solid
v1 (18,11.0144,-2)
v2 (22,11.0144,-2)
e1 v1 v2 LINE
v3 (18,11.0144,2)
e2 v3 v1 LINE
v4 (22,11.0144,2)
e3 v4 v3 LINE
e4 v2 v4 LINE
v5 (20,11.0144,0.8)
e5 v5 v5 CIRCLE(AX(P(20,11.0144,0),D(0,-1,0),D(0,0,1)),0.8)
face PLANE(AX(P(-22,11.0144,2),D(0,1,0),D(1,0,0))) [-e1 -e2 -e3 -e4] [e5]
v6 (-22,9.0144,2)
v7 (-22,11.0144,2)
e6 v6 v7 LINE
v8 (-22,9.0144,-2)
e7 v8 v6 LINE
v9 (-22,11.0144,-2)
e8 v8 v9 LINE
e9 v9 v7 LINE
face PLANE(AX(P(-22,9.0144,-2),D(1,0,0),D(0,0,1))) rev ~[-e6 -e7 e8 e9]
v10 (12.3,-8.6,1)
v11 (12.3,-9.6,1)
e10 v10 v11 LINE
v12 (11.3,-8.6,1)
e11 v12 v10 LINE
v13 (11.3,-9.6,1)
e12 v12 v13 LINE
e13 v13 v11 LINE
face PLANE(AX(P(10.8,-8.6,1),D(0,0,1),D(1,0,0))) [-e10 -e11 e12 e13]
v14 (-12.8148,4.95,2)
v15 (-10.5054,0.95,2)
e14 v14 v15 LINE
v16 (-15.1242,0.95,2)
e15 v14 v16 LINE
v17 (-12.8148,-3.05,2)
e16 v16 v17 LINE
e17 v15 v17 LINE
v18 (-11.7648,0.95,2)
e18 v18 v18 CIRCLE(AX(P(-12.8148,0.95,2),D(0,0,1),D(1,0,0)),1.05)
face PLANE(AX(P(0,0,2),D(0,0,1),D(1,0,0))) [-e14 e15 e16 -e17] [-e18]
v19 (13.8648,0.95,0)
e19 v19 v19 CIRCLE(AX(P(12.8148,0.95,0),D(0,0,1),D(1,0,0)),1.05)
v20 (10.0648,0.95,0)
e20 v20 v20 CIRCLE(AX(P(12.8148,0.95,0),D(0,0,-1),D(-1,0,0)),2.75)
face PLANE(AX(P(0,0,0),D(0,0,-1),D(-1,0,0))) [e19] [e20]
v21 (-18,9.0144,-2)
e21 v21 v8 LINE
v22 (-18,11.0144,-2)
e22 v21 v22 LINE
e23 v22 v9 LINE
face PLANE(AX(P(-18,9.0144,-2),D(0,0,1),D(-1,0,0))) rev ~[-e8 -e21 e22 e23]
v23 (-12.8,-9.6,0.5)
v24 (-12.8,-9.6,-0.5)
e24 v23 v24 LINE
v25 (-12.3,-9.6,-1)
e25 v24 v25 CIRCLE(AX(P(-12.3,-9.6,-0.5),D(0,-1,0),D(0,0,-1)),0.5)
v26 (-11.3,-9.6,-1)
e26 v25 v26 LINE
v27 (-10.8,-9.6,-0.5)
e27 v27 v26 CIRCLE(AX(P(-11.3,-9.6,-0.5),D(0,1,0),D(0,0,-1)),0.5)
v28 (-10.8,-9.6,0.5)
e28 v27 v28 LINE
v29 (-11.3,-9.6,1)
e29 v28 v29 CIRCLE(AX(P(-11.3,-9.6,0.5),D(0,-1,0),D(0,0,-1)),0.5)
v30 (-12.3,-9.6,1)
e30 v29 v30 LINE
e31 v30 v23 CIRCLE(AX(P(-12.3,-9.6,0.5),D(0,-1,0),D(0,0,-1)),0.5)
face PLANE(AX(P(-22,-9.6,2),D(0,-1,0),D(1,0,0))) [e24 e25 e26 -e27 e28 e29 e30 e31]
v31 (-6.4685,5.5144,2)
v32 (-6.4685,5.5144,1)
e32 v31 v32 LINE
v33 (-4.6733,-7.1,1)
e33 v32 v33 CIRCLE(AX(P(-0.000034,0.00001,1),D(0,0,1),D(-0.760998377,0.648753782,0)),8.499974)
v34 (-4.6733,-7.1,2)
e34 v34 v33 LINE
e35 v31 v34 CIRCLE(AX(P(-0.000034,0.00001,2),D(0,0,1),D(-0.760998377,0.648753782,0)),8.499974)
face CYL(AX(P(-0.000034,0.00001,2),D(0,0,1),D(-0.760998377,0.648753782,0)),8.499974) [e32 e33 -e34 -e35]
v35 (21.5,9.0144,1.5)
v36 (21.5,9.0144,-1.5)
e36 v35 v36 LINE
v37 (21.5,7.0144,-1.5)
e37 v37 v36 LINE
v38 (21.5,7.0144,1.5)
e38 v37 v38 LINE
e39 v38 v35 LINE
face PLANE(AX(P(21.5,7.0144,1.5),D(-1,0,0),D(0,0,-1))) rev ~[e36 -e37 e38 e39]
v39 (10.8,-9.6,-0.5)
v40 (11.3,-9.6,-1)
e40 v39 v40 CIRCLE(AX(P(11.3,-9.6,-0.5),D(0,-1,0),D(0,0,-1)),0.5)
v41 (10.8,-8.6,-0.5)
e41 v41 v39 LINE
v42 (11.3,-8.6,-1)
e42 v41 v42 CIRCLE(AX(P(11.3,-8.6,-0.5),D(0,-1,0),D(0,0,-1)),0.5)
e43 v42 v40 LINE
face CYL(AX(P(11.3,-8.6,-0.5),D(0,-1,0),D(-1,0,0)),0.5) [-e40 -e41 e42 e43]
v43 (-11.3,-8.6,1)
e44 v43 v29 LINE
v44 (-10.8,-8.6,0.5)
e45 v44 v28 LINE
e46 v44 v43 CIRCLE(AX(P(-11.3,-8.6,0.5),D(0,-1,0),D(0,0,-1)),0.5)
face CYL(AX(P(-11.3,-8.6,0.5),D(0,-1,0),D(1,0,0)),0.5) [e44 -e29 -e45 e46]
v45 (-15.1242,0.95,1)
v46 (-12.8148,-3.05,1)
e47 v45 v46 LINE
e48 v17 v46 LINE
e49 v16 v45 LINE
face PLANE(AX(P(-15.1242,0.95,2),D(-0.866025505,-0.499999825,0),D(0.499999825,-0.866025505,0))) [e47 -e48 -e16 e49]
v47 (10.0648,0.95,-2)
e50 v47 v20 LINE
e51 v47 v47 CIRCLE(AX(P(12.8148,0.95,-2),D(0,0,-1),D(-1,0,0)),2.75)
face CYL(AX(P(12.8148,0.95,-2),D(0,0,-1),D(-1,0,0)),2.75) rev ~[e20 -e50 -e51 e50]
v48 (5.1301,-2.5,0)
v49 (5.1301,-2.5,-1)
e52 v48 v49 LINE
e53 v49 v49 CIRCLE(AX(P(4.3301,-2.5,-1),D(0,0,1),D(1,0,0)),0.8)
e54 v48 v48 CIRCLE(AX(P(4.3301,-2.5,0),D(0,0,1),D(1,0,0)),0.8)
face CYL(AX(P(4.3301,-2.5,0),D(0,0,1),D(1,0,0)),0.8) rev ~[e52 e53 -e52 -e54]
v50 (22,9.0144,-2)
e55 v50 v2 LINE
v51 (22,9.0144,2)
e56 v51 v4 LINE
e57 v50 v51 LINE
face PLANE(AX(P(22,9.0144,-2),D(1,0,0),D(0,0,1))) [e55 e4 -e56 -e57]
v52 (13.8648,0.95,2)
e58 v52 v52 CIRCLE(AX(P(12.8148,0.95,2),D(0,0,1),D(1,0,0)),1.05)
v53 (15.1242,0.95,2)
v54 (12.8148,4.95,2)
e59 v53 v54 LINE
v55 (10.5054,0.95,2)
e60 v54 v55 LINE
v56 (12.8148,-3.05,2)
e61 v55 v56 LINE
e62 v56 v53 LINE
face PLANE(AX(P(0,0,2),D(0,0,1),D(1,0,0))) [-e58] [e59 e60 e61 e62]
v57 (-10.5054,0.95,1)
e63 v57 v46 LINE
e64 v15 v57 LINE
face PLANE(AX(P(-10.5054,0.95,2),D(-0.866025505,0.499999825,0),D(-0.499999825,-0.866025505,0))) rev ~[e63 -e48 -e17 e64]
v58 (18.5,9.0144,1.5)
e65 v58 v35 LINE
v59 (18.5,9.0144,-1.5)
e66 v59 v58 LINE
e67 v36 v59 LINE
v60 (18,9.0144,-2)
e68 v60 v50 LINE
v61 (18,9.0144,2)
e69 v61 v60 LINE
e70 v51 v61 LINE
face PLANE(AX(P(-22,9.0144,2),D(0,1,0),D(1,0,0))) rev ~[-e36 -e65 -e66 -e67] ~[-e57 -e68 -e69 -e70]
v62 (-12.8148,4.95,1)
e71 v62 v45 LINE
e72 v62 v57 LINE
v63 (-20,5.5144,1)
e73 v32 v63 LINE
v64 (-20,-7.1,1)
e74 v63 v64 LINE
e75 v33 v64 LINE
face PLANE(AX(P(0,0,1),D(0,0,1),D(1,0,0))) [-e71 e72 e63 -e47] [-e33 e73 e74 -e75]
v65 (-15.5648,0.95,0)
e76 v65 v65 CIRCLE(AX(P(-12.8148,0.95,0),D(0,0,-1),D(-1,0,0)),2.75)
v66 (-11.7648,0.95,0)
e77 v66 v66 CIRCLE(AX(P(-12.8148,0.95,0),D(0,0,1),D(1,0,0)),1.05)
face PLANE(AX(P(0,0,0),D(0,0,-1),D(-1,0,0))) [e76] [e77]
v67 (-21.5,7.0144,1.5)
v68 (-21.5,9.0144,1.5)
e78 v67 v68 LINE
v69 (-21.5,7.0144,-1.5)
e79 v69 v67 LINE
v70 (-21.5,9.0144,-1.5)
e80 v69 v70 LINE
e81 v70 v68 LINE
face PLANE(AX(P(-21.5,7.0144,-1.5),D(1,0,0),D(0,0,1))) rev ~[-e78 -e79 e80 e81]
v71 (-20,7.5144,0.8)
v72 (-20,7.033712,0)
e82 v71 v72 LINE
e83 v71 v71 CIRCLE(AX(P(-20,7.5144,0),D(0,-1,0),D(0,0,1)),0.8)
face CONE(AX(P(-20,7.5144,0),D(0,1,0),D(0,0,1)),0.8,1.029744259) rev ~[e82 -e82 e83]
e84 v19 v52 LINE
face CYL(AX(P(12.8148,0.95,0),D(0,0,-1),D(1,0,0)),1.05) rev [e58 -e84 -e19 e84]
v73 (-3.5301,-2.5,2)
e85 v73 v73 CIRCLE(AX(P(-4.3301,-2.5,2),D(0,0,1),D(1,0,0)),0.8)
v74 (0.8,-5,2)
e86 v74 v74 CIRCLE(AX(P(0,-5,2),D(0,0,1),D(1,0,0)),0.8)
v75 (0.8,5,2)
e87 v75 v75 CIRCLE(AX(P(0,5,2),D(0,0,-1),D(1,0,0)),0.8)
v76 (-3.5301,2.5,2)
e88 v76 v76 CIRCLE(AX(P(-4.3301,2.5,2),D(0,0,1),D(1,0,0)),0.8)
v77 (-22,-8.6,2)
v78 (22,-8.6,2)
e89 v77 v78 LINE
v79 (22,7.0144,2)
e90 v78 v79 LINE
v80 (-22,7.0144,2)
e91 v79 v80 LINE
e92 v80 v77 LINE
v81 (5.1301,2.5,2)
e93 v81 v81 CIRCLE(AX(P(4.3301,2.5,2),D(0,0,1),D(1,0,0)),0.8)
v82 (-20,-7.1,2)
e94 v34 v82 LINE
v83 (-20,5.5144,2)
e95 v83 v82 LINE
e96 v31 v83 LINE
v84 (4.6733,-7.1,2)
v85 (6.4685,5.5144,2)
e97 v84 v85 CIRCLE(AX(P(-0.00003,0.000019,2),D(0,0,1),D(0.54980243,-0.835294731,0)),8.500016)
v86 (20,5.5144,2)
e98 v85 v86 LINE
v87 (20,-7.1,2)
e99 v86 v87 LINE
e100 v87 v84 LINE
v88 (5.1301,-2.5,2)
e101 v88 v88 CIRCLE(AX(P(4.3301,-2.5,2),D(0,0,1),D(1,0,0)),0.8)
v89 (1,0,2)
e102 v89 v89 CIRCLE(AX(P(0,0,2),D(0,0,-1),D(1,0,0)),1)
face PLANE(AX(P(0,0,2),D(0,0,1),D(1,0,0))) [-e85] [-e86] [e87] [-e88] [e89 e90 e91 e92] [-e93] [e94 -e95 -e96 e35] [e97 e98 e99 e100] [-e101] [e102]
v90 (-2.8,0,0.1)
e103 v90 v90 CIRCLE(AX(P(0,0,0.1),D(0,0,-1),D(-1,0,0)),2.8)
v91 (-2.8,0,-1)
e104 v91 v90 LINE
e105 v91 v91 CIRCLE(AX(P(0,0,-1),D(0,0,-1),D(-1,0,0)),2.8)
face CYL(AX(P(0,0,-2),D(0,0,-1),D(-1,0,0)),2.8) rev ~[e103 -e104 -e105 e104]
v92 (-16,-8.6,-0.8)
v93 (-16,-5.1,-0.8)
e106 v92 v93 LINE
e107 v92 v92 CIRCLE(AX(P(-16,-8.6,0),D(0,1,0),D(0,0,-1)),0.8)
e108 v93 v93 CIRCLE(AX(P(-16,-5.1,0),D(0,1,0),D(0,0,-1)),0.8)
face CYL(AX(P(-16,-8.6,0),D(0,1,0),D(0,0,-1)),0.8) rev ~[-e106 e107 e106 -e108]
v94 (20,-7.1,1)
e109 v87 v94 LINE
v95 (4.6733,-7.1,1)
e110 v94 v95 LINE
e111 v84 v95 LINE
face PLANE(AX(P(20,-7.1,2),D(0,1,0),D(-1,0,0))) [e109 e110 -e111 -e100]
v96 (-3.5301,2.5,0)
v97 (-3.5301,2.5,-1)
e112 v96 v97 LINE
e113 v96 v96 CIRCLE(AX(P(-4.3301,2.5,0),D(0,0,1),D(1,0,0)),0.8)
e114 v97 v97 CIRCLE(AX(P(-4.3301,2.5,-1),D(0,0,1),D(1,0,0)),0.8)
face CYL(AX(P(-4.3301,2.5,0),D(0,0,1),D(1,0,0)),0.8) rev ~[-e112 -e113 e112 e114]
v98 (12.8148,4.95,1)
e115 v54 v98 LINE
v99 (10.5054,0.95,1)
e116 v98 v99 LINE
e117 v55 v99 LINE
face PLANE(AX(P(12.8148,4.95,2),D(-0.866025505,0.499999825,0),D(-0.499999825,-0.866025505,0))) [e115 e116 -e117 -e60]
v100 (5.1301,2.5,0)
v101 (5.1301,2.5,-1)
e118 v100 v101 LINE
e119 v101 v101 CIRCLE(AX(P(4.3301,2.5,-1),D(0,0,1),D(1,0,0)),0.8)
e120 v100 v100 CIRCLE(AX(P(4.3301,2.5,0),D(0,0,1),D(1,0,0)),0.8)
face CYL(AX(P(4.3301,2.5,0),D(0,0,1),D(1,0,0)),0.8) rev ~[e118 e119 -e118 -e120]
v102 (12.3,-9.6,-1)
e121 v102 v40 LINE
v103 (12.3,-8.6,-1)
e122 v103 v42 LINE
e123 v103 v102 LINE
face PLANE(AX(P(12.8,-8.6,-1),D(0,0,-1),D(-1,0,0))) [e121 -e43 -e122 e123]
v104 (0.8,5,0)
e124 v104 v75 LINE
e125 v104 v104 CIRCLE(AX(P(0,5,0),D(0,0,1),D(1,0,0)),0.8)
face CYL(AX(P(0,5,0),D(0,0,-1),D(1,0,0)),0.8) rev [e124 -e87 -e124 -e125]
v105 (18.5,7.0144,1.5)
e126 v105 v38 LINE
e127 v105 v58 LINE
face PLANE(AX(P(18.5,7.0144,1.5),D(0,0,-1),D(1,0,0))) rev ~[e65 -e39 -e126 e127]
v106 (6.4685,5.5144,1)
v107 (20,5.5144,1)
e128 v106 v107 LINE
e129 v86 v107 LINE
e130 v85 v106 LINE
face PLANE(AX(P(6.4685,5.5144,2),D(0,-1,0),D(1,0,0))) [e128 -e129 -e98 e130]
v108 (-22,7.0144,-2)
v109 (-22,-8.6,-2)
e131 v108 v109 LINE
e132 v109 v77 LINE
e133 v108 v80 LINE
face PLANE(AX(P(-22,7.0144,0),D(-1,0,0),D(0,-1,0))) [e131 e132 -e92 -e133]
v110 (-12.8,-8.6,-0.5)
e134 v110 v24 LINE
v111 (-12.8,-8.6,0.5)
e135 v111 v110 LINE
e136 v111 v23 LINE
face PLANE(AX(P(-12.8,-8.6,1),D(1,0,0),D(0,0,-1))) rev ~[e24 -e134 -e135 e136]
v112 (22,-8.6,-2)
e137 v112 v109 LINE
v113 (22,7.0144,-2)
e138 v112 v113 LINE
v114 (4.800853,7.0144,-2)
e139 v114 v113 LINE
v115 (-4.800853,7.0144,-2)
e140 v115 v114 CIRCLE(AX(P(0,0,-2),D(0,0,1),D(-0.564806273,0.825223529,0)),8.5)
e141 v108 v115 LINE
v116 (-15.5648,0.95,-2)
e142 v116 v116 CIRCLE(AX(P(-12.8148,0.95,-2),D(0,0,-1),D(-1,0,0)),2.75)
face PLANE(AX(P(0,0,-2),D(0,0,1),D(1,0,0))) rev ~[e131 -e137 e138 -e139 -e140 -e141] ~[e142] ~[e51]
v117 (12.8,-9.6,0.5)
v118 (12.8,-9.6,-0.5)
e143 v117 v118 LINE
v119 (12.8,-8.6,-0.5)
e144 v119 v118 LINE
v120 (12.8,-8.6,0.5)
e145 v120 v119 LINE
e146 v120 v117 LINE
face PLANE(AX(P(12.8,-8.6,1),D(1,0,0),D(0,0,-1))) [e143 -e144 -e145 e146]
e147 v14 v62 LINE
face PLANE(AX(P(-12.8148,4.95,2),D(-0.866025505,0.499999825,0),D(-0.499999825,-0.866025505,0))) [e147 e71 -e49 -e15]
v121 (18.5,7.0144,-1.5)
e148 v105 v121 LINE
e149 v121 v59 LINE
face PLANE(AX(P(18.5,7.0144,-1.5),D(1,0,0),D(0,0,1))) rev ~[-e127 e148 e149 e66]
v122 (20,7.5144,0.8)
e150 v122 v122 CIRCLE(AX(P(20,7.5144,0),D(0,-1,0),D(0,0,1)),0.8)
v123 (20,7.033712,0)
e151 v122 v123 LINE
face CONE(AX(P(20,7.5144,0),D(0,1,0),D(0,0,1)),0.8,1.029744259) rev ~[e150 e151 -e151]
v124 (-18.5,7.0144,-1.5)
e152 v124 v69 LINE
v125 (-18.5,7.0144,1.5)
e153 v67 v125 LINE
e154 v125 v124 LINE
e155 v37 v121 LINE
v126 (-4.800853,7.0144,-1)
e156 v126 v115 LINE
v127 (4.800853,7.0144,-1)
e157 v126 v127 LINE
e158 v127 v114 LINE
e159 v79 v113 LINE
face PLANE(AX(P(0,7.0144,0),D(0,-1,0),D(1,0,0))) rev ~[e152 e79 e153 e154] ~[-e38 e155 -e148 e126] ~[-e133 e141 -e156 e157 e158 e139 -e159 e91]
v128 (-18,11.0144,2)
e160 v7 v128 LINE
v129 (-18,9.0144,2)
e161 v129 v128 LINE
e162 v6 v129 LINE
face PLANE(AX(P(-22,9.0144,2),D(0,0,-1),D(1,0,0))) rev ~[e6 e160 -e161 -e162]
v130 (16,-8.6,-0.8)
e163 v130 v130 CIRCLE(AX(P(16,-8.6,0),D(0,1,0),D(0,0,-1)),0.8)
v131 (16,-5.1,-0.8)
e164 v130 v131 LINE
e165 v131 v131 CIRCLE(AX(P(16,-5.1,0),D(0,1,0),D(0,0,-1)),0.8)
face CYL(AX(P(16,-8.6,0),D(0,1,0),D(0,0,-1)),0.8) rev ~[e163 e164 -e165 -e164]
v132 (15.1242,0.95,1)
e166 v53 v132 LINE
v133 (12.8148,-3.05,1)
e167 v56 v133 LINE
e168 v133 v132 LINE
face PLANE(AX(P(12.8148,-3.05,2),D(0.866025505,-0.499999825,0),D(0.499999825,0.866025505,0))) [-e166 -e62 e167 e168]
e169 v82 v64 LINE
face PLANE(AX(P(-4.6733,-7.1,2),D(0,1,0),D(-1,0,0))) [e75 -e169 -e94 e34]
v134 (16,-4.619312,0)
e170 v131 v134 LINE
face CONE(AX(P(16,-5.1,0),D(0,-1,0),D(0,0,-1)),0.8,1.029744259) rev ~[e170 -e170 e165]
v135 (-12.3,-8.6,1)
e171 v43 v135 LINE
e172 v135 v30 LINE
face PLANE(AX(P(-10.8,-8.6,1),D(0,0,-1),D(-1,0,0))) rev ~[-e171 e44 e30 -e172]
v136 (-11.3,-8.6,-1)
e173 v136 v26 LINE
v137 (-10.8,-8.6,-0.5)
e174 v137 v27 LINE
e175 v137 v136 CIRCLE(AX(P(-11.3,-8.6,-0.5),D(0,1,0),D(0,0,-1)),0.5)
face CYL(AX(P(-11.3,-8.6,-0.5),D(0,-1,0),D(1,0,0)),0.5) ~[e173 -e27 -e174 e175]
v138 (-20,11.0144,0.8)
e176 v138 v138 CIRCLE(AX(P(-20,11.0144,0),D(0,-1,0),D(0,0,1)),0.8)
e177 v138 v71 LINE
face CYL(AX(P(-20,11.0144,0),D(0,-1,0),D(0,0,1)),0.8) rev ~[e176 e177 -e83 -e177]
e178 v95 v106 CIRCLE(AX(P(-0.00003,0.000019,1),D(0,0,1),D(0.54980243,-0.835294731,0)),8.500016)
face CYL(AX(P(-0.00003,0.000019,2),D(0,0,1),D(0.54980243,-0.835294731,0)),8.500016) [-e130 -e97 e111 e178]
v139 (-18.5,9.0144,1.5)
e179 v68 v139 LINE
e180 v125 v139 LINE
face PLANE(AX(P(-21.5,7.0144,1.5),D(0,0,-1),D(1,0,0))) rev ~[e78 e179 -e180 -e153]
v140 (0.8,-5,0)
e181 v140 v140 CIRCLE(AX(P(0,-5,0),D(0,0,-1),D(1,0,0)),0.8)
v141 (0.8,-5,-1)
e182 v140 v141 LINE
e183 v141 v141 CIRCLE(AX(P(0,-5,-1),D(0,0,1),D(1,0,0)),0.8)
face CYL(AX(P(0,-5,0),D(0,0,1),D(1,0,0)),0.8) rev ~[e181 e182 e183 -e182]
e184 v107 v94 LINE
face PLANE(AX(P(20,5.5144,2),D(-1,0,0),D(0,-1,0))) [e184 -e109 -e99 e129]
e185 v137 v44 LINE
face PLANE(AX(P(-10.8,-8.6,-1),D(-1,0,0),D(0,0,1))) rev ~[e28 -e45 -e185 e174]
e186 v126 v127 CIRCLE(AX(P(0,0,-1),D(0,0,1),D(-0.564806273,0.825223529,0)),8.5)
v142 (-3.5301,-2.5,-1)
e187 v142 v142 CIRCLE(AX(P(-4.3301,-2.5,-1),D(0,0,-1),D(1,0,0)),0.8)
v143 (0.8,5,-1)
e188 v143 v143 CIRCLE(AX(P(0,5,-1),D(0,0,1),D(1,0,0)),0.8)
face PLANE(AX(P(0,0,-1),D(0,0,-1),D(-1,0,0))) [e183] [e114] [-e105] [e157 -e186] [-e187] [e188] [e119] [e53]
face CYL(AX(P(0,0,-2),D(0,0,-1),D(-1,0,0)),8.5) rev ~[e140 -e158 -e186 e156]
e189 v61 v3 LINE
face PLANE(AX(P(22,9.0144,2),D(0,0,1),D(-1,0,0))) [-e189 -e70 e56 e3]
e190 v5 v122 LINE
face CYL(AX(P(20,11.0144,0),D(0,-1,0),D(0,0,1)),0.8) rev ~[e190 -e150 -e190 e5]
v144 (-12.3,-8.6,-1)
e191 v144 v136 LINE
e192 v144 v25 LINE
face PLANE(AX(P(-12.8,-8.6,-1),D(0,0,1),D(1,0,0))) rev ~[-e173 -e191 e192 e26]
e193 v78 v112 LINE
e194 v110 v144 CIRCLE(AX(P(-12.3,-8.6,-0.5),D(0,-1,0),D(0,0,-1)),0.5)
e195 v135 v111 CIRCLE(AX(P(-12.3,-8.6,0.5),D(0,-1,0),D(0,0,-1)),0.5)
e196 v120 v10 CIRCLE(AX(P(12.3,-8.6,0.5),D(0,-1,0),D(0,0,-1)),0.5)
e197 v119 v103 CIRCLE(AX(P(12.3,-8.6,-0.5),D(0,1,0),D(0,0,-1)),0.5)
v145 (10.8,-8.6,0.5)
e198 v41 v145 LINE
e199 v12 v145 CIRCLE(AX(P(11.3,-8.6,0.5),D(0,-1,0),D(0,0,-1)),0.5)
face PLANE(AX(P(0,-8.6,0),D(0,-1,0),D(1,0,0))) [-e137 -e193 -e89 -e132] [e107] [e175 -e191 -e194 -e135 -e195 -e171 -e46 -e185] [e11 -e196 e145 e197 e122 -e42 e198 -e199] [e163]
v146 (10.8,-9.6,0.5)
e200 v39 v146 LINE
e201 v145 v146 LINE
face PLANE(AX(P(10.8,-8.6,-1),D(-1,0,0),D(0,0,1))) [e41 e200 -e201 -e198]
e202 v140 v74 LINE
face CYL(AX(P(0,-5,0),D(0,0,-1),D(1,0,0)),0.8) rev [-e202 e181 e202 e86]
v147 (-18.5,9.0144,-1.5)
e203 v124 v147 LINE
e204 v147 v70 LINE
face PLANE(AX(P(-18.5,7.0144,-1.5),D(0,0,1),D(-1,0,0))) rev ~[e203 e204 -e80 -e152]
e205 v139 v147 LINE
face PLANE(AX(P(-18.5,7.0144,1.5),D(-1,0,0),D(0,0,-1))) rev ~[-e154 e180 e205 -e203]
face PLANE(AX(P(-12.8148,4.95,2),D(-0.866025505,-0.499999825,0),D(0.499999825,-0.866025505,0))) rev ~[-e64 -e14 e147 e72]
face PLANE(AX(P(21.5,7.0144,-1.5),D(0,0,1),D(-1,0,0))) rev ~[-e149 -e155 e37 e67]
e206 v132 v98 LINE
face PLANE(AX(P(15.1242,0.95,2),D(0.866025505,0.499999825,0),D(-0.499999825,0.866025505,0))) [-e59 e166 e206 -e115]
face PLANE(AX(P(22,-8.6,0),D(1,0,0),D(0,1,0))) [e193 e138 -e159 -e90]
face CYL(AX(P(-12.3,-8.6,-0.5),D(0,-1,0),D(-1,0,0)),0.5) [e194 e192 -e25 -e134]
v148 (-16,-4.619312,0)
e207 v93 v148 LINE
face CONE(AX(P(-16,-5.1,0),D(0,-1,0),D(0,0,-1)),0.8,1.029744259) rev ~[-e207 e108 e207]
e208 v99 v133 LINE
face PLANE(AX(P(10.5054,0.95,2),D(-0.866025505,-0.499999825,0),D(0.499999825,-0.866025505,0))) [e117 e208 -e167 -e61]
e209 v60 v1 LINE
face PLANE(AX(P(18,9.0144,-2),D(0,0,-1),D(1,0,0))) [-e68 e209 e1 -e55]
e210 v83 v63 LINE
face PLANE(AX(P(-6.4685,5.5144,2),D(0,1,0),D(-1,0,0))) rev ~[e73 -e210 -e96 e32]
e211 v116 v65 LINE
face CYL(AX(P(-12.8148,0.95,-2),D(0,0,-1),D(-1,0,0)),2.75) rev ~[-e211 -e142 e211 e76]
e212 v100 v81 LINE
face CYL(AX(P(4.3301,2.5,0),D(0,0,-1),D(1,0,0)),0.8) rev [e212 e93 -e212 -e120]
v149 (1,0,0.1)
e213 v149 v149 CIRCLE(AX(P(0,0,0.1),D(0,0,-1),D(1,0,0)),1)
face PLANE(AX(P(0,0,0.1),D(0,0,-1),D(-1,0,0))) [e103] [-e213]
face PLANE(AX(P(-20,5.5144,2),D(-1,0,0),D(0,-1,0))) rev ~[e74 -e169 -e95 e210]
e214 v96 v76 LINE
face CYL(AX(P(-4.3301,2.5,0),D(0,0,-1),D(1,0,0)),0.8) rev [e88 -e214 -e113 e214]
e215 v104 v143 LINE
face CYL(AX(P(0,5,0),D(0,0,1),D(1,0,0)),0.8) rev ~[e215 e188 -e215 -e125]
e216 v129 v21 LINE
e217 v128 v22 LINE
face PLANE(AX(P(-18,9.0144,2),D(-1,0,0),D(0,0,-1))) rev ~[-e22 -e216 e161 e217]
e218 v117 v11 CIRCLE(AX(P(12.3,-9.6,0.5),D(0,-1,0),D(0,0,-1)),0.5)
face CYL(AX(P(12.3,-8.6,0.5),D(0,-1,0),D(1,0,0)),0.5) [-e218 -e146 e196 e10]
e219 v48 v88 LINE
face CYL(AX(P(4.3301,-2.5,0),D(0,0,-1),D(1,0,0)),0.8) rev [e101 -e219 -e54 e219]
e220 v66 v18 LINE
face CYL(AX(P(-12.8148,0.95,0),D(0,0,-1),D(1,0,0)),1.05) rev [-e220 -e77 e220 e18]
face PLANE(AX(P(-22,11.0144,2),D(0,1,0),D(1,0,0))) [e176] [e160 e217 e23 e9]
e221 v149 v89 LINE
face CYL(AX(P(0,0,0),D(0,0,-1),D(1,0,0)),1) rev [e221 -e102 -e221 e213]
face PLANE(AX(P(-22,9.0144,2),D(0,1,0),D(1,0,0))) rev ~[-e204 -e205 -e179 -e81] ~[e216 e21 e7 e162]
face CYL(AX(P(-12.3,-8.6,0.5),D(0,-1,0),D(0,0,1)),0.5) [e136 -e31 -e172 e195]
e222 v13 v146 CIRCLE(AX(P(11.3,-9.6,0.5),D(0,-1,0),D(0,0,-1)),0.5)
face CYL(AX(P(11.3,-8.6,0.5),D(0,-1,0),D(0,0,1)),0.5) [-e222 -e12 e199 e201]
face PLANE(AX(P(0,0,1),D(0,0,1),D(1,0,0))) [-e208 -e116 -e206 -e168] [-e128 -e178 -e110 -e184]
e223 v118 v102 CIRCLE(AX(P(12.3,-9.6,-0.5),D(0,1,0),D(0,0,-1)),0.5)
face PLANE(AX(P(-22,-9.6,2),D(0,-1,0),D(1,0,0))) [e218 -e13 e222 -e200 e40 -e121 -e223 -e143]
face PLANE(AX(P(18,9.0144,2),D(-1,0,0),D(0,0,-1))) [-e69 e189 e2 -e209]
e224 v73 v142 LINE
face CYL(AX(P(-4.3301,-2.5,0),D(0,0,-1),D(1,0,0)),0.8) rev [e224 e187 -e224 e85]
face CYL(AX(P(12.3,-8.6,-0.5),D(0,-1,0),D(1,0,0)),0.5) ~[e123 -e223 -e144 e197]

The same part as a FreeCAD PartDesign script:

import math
import FreeCAD as App
import Part
import Sketcher
Q = App.Units.Quantity


def edges_at(feature, points):
    """Names of the edges that pass closest to the given points."""
    edges = feature.Shape.Edges
    near = lambda p: min(range(len(edges)), key=lambda i: edges[i].distToShape(Part.Vertex(*p))[0])
    return sorted({f"Edge{near(p) + 1}" for p in points})

doc = App.newDocument("Part")
body = doc.addObject("PartDesign::Body", "Body")

sketch1 = doc.addObject("Sketcher::SketchObject", "Sketch")
body.addObject(sketch1)
sketch1.AttachmentSupport = (doc.XY_Plane, [""])
sketch1.MapMode = "FlatFace"
sketch1.addGeometry([
    Part.LineSegment(App.Vector(-22, 7.0144, 0), App.Vector(-22, -8.6, 0)),
    Part.LineSegment(App.Vector(-22, -8.6, 0), App.Vector(22, -8.6, 0)),
    Part.LineSegment(App.Vector(22, -8.6, 0), App.Vector(22, 7.0144, 0)),
    Part.LineSegment(App.Vector(22, 7.0144, 0), App.Vector(-22, 7.0144, 0)),
    Part.Circle(App.Vector(0, -5, 0), App.Vector(0, 0, 1), 0.8),
    Part.Circle(App.Vector(0, 5, 0), App.Vector(0, 0, 1), 0.8),
    Part.Circle(App.Vector(4.3301, -2.5, 0), App.Vector(0, 0, 1), 0.8),
    Part.Circle(App.Vector(4.3301, 2.5, 0), App.Vector(0, 0, 1), 0.8),
    Part.Circle(App.Vector(-4.3301, 2.5, 0), App.Vector(0, 0, 1), 0.8),
    Part.Circle(App.Vector(-4.3301, -2.5, 0), App.Vector(0, 0, 1), 0.8),
    Part.Circle(App.Vector(0, 0, 0), App.Vector(0, 0, 1), 1),
    Part.Circle(App.Vector(12.8148, 0.95, 0), App.Vector(0, 0, 1), 1.05),
    Part.Circle(App.Vector(-12.8148, 0.95, 0), App.Vector(0, 0, 1), 1.05),
], False)
sketch1.addConstraint([
    Sketcher.Constraint("Coincident", 0, 2, 1, 1),
    Sketcher.Constraint("Coincident", 1, 2, 2, 1),
    Sketcher.Constraint("Coincident", 2, 2, 3, 1),
    Sketcher.Constraint("Coincident", 3, 2, 0, 1),
    Sketcher.Constraint("Vertical", 0),
    Sketcher.Constraint("Horizontal", 1),
    Sketcher.Constraint("Vertical", 2),
    Sketcher.Constraint("Horizontal", 3),
    Sketcher.Constraint("Coincident", 10, 3, -1, 1),
    Sketcher.Constraint("Equal", 4, 5),
    Sketcher.Constraint("Equal", 5, 6),
    Sketcher.Constraint("Equal", 6, 7),
    Sketcher.Constraint("Equal", 7, 8),
    Sketcher.Constraint("Equal", 8, 9),
    Sketcher.Constraint("Equal", 11, 12),
    Sketcher.Constraint("Symmetric", 4, 3, 5, 3, -1, 1),
    Sketcher.Constraint("Symmetric", 6, 3, 8, 3, -1, 1),
    Sketcher.Constraint("Symmetric", 7, 3, 9, 3, -1, 1),
    Sketcher.Constraint("Symmetric", 7, 3, 8, 3, -2),
    Sketcher.Constraint("Symmetric", 11, 3, 12, 3, -2),
    Sketcher.Constraint("PointOnObject", 4, 3, -2),
    Sketcher.Constraint("Diameter", 10, 2.0),
    Sketcher.Constraint("Diameter", 4, 1.6),
    Sketcher.Constraint("Diameter", 11, 2.1),
    Sketcher.Constraint("DistanceY", 4, 3, -1, 1, 5.0),
    Sketcher.Constraint("DistanceX", 0, 2, -1, 1, 22.0),
    Sketcher.Constraint("DistanceX", -1, 1, 1, 2, 22.0),
    Sketcher.Constraint("DistanceY", 6, 3, 7, 3, 5.0),
    Sketcher.Constraint("DistanceY", 0, 2, -1, 1, 8.6),
    Sketcher.Constraint("DistanceX", -1, 1, 6, 3, 4.33),
    Sketcher.Constraint("DistanceY", -1, 1, 11, 3, 0.95),
    Sketcher.Constraint("DistanceY", 0, 2, 0, 1, 15.6144),
    Sketcher.Constraint("DistanceX", -1, 1, 11, 3, 12.8148),
])
pad1 = doc.addObject("PartDesign::Pad", "Pad")
body.addObject(pad1)
pad1.Profile = sketch1
pad1.Length = 4
pad1.Midplane = True

sketch2 = doc.addObject("Sketcher::SketchObject", "Sketch001")
body.addObject(sketch2)
sketch2.AttachmentSupport = (doc.XZ_Plane, [""])
sketch2.MapMode = "FlatFace"
sketch2.AttachmentOffset = App.Placement(App.Vector(0, 0, -7.0144), App.Rotation())
sketch2.addGeometry([
    Part.LineSegment(App.Vector(-21.5, -1.5, 0), App.Vector(-21.5, 1.5, 0)),
    Part.LineSegment(App.Vector(-21.5, 1.5, 0), App.Vector(-18.5, 1.5, 0)),
    Part.LineSegment(App.Vector(-18.5, 1.5, 0), App.Vector(-18.5, -1.5, 0)),
    Part.LineSegment(App.Vector(-18.5, -1.5, 0), App.Vector(-21.5, -1.5, 0)),
    Part.LineSegment(App.Vector(18.5, -1.5, 0), App.Vector(18.5, 1.5, 0)),
    Part.LineSegment(App.Vector(18.5, 1.5, 0), App.Vector(21.5, 1.5, 0)),
    Part.LineSegment(App.Vector(21.5, 1.5, 0), App.Vector(21.5, -1.5, 0)),
    Part.LineSegment(App.Vector(21.5, -1.5, 0), App.Vector(18.5, -1.5, 0)),
], False)
sketch2.addConstraint([
    Sketcher.Constraint("Coincident", 0, 2, 1, 1),
    Sketcher.Constraint("Coincident", 1, 2, 2, 1),
    Sketcher.Constraint("Coincident", 2, 2, 3, 1),
    Sketcher.Constraint("Coincident", 3, 2, 0, 1),
    Sketcher.Constraint("Coincident", 4, 2, 5, 1),
    Sketcher.Constraint("Coincident", 5, 2, 6, 1),
    Sketcher.Constraint("Coincident", 6, 2, 7, 1),
    Sketcher.Constraint("Coincident", 7, 2, 4, 1),
    Sketcher.Constraint("Vertical", 0),
    Sketcher.Constraint("Horizontal", 1),
    Sketcher.Constraint("Vertical", 2),
    Sketcher.Constraint("Horizontal", 3),
    Sketcher.Constraint("Vertical", 4),
    Sketcher.Constraint("Horizontal", 5),
    Sketcher.Constraint("Vertical", 6),
    Sketcher.Constraint("Horizontal", 7),
    Sketcher.Constraint("Symmetric", 2, 2, 4, 2, -1, 1),
    Sketcher.Constraint("Symmetric", 0, 2, 6, 2, -1, 1),
    Sketcher.Constraint("Horizontal", 1, 2, 4, 2),
    Sketcher.Constraint("Equal", 7, 0),
    Sketcher.Constraint("DistanceX", 1, 1, 1, 2, 3.0),
    Sketcher.Constraint("DistanceX", 1, 2, 4, 2, 37.0),
])
pad2 = doc.addObject("PartDesign::Pad", "Pad001")
body.addObject(pad2)
pad2.Profile = sketch2
pad2.Length = 2
pad2.Reversed = True

sketch3 = doc.addObject("Sketcher::SketchObject", "Sketch002")
body.addObject(sketch3)
sketch3.AttachmentSupport = (doc.XZ_Plane, [""])
sketch3.MapMode = "FlatFace"
sketch3.AttachmentOffset = App.Placement(App.Vector(0, 0, -9.0144), App.Rotation())
sketch3.addGeometry([
    Part.LineSegment(App.Vector(-18, 2, 0), App.Vector(-18, -2, 0)),
    Part.LineSegment(App.Vector(-18, -2, 0), App.Vector(-22, -2, 0)),
    Part.LineSegment(App.Vector(-22, -2, 0), App.Vector(-22, 2, 0)),
    Part.LineSegment(App.Vector(-22, 2, 0), App.Vector(-18, 2, 0)),
    Part.LineSegment(App.Vector(18, -2, 0), App.Vector(18, 2, 0)),
    Part.LineSegment(App.Vector(18, 2, 0), App.Vector(22, 2, 0)),
    Part.LineSegment(App.Vector(22, 2, 0), App.Vector(22, -2, 0)),
    Part.LineSegment(App.Vector(22, -2, 0), App.Vector(18, -2, 0)),
], False)
sketch3.addConstraint([
    Sketcher.Constraint("Coincident", 0, 2, 1, 1),
    Sketcher.Constraint("Coincident", 1, 2, 2, 1),
    Sketcher.Constraint("Coincident", 2, 2, 3, 1),
    Sketcher.Constraint("Coincident", 3, 2, 0, 1),
    Sketcher.Constraint("Coincident", 4, 2, 5, 1),
    Sketcher.Constraint("Coincident", 5, 2, 6, 1),
    Sketcher.Constraint("Coincident", 6, 2, 7, 1),
    Sketcher.Constraint("Coincident", 7, 2, 4, 1),
    Sketcher.Constraint("Vertical", 0),
    Sketcher.Constraint("Horizontal", 1),
    Sketcher.Constraint("Vertical", 2),
    Sketcher.Constraint("Horizontal", 3),
    Sketcher.Constraint("Vertical", 4),
    Sketcher.Constraint("Horizontal", 5),
    Sketcher.Constraint("Vertical", 6),
    Sketcher.Constraint("Horizontal", 7),
    Sketcher.Constraint("Symmetric", 0, 2, 4, 2, -1, 1),
    Sketcher.Constraint("Symmetric", 2, 2, 6, 2, -1, 1),
    Sketcher.Constraint("Horizontal", 3, 2, 4, 2),
    Sketcher.Constraint("Equal", 7, 0),
    Sketcher.Constraint("DistanceX", 1, 2, 1, 1, 4.0),
    Sketcher.Constraint("DistanceX", 0, 2, -1, 1, 18.0),
])
pad3 = doc.addObject("PartDesign::Pad", "Pad002")
body.addObject(pad3)
pad3.Profile = sketch3
pad3.Length = 2
pad3.Reversed = True

sketch4 = doc.addObject("Sketcher::SketchObject", "Sketch003")
body.addObject(sketch4)
sketch4.AttachmentSupport = (doc.XY_Plane, [""])
sketch4.MapMode = "FlatFace"
sketch4.AttachmentOffset = App.Placement(App.Vector(0, 0, 2), App.Rotation())
sketch4.addGeometry([
    Part.LineSegment(App.Vector(-6.4685, 5.5144, 0), App.Vector(-20, 5.5144, 0)),
    Part.LineSegment(App.Vector(-20, 5.5144, 0), App.Vector(-20, -7.1, 0)),
    Part.LineSegment(App.Vector(-20, -7.1, 0), App.Vector(-4.6733, -7.1, 0)),
    Part.ArcOfCircle(Part.Circle(App.Vector(0, 0, 0), App.Vector(0, 0, 1), 8.499984), math.radians(139.552389), math.radians(236.646637)),
    Part.LineSegment(App.Vector(-15.1242, 0.95, 0), App.Vector(-12.8148, 4.95, 0)),
    Part.LineSegment(App.Vector(-12.8148, 4.95, 0), App.Vector(-10.5054, 0.95, 0)),
    Part.LineSegment(App.Vector(-10.5054, 0.95, 0), App.Vector(-12.8148, -3.05, 0)),
    Part.LineSegment(App.Vector(-12.8148, -3.05, 0), App.Vector(-15.1242, 0.95, 0)),
    Part.LineSegment(App.Vector(20, -7.1, 0), App.Vector(20, 5.5144, 0)),
    Part.LineSegment(App.Vector(20, 5.5144, 0), App.Vector(6.4685, 5.5144, 0)),
    Part.ArcOfCircle(Part.Circle(App.Vector(0, 0, 0), App.Vector(0, 0, 1), 8.500006), math.radians(-56.646637), math.radians(40.447611)),
    Part.LineSegment(App.Vector(4.6733, -7.1, 0), App.Vector(20, -7.1, 0)),
    Part.LineSegment(App.Vector(10.5054, 0.95, 0), App.Vector(12.8148, 4.95, 0)),
    Part.LineSegment(App.Vector(12.8148, 4.95, 0), App.Vector(15.1242, 0.95, 0)),
    Part.LineSegment(App.Vector(15.1242, 0.95, 0), App.Vector(12.8148, -3.05, 0)),
    Part.LineSegment(App.Vector(12.8148, -3.05, 0), App.Vector(10.5054, 0.95, 0)),
], False)
sketch4.addConstraint([
    Sketcher.Constraint("Coincident", 0, 2, 1, 1),
    Sketcher.Constraint("Coincident", 1, 2, 2, 1),
    Sketcher.Constraint("Coincident", 2, 2, 3, 2),
    Sketcher.Constraint("Coincident", 3, 1, 0, 1),
    Sketcher.Constraint("Coincident", 4, 2, 5, 1),
    Sketcher.Constraint("Coincident", 5, 2, 6, 1),
    Sketcher.Constraint("Coincident", 6, 2, 7, 1),
    Sketcher.Constraint("Coincident", 7, 2, 4, 1),
    Sketcher.Constraint("Coincident", 8, 2, 9, 1),
    Sketcher.Constraint("Coincident", 9, 2, 10, 2),
    Sketcher.Constraint("Coincident", 10, 1, 11, 1),
    Sketcher.Constraint("Coincident", 11, 2, 8, 1),
    Sketcher.Constraint("Coincident", 12, 2, 13, 1),
    Sketcher.Constraint("Coincident", 13, 2, 14, 1),
    Sketcher.Constraint("Coincident", 14, 2, 15, 1),
    Sketcher.Constraint("Coincident", 15, 2, 12, 1),
    Sketcher.Constraint("Horizontal", 0),
    Sketcher.Constraint("Vertical", 1),
    Sketcher.Constraint("Horizontal", 2),
    Sketcher.Constraint("Vertical", 8),
    Sketcher.Constraint("Horizontal", 9),
    Sketcher.Constraint("Horizontal", 11),
    Sketcher.Constraint("Coincident", 3, 3, -1, 1),
    Sketcher.Constraint("Coincident", 10, 3, -1, 1),
    Sketcher.Constraint("Equal", 3, 10),
    Sketcher.Constraint("Symmetric", 0, 2, 8, 2, -2),
    Sketcher.Constraint("Symmetric", 4, 2, 12, 2, -2),
    Sketcher.Constraint("Symmetric", 7, 2, 13, 2, -2),
    Sketcher.Constraint("Symmetric", 6, 2, 14, 2, -2),
    Sketcher.Constraint("Symmetric", 5, 2, 15, 2, -2),
    Sketcher.Constraint("Parallel", 4, 6),
    Sketcher.Constraint("Parallel", 5, 7),
    Sketcher.Constraint("Parallel", 6, 12),
    Sketcher.Constraint("Horizontal", 5, 2, 7, 2),
    Sketcher.Constraint("Horizontal", 2, 2, 10, 1),
    Sketcher.Constraint("Radius", 3, 8.5),
    Sketcher.Constraint("Angle", 4, Q("60 deg")),
    Sketcher.Constraint("DistanceY", 6, 2, 4, 2, 8.0),
    Sketcher.Constraint("DistanceX", 0, 2, -1, 1, 20.0),
    Sketcher.Constraint("DistanceY", 1, 2, -1, 1, 7.1),
    Sketcher.Constraint("DistanceY", -1, 1, 4, 2, 4.95),
    Sketcher.Constraint("DistanceX", 0, 2, 0, 1, 13.5315),
    Sketcher.Constraint("DistanceX", 5, 2, 3, 1, 4.037),
])
pocket1 = doc.addObject("PartDesign::Pocket", "Pocket")
body.addObject(pocket1)
pocket1.Profile = sketch4
pocket1.Length = 1

sketch5 = doc.addObject("Sketcher::SketchObject", "Sketch004")
body.addObject(sketch5)
sketch5.AttachmentSupport = (doc.XY_Plane, [""])
sketch5.MapMode = "FlatFace"
sketch5.AttachmentOffset = App.Placement(App.Vector(0, 0, -2), App.Rotation())
sketch5.addGeometry([
    Part.Circle(App.Vector(-12.8148, 0.95, 0), App.Vector(0, 0, 1), 2.75),
    Part.Circle(App.Vector(12.8148, 0.95, 0), App.Vector(0, 0, 1), 2.75),
], False)
sketch5.addConstraint([
    Sketcher.Constraint("Equal", 0, 1),
    Sketcher.Constraint("Symmetric", 0, 3, 1, 3, -2),
    Sketcher.Constraint("Diameter", 0, 5.5),
    Sketcher.Constraint("DistanceY", -1, 1, 0, 3, 0.95),
    Sketcher.Constraint("DistanceX", 0, 3, -1, 1, 12.8148),
])
pocket2 = doc.addObject("PartDesign::Pocket", "Pocket001")
body.addObject(pocket2)
pocket2.Profile = sketch5
pocket2.Length = 2
pocket2.Reversed = True

sketch6 = doc.addObject("Sketcher::SketchObject", "Sketch005")
body.addObject(sketch6)
sketch6.AttachmentSupport = (doc.XY_Plane, [""])
sketch6.MapMode = "FlatFace"
sketch6.AttachmentOffset = App.Placement(App.Vector(0, 0, -2), App.Rotation())
sketch6.addGeometry(Part.Circle(App.Vector(0, 0, 0), App.Vector(0, 0, 1), 8.5), False)
sketch6.addConstraint([
    Sketcher.Constraint("Coincident", 0, 3, -1, 1),
    Sketcher.Constraint("Diameter", 0, 17.0),
])
pocket3 = doc.addObject("PartDesign::Pocket", "Pocket002")
body.addObject(pocket3)
pocket3.Profile = sketch6
pocket3.Length = 1
pocket3.Reversed = True

sketch7 = doc.addObject("Sketcher::SketchObject", "Sketch006")
body.addObject(sketch7)
sketch7.AttachmentSupport = (doc.XY_Plane, [""])
sketch7.MapMode = "FlatFace"
sketch7.AttachmentOffset = App.Placement(App.Vector(0, 0, -2), App.Rotation())
sketch7.addGeometry([
    Part.Circle(App.Vector(0, 0, 0), App.Vector(0, 0, 1), 2.8),
    Part.Circle(App.Vector(0, 0, 0), App.Vector(0, 0, 1), 1),
], False)
sketch7.addConstraint([
    Sketcher.Constraint("Coincident", 0, 3, -1, 1),
    Sketcher.Constraint("Coincident", 1, 3, -1, 1),
    Sketcher.Constraint("Diameter", 0, 5.6),
    Sketcher.Constraint("Diameter", 1, 2.0),
])
pocket4 = doc.addObject("PartDesign::Pocket", "Pocket003")
body.addObject(pocket4)
pocket4.Profile = sketch7
pocket4.Length = 2.1
pocket4.Reversed = True

sketch8 = doc.addObject("Sketcher::SketchObject", "Sketch007")
body.addObject(sketch8)
sketch8.AttachmentSupport = (doc.XZ_Plane, [""])
sketch8.MapMode = "FlatFace"
sketch8.AttachmentOffset = App.Placement(App.Vector(0, 0, 8.6), App.Rotation())
sketch8.addGeometry([
    Part.Circle(App.Vector(16, 0, 0), App.Vector(0, 0, 1), 0.8),
    Part.Circle(App.Vector(-16, 0, 0), App.Vector(0, 0, 1), 0.8),
], False)
sketch8.addConstraint([
    Sketcher.Constraint("Equal", 0, 1),
    Sketcher.Constraint("Symmetric", 0, 3, 1, 3, -1, 1),
    Sketcher.Constraint("PointOnObject", 0, 3, -1),
    Sketcher.Constraint("Diameter", 0, 1.6),
    Sketcher.Constraint("DistanceX", -1, 1, 0, 3, 16.0),
])
doc.recompute()
hole = doc.addObject("PartDesign::Hole", "Hole")
body.addObject(hole)
hole.Profile = sketch8
hole.ThreadType = "None"
hole.Diameter = 1.6
hole.DepthType = "Dimension"
hole.Depth = 3.5
hole.DrillPoint = "Angled"
hole.DrillPointAngle = 118

sketch9 = doc.addObject("Sketcher::SketchObject", "Sketch008")
body.addObject(sketch9)
sketch9.AttachmentSupport = (doc.XZ_Plane, [""])
sketch9.MapMode = "FlatFace"
sketch9.AttachmentOffset = App.Placement(App.Vector(0, 0, 8.6), App.Rotation())
sketch9.addGeometry([
    Part.LineSegment(App.Vector(10.8, -1, 0), App.Vector(12.8, -1, 0)),
    Part.LineSegment(App.Vector(12.8, -1, 0), App.Vector(12.8, 1, 0)),
    Part.LineSegment(App.Vector(12.8, 1, 0), App.Vector(10.8, 1, 0)),
    Part.LineSegment(App.Vector(10.8, 1, 0), App.Vector(10.8, -1, 0)),
    Part.LineSegment(App.Vector(-10.8, -1, 0), App.Vector(-10.8, 1, 0)),
    Part.LineSegment(App.Vector(-10.8, 1, 0), App.Vector(-12.8, 1, 0)),
    Part.LineSegment(App.Vector(-12.8, 1, 0), App.Vector(-12.8, -1, 0)),
    Part.LineSegment(App.Vector(-12.8, -1, 0), App.Vector(-10.8, -1, 0)),
], False)
sketch9.addConstraint([
    Sketcher.Constraint("Coincident", 0, 2, 1, 1),
    Sketcher.Constraint("Coincident", 1, 2, 2, 1),
    Sketcher.Constraint("Coincident", 2, 2, 3, 1),
    Sketcher.Constraint("Coincident", 3, 2, 0, 1),
    Sketcher.Constraint("Coincident", 4, 2, 5, 1),
    Sketcher.Constraint("Coincident", 5, 2, 6, 1),
    Sketcher.Constraint("Coincident", 6, 2, 7, 1),
    Sketcher.Constraint("Coincident", 7, 2, 4, 1),
    Sketcher.Constraint("Horizontal", 0),
    Sketcher.Constraint("Vertical", 1),
    Sketcher.Constraint("Horizontal", 2),
    Sketcher.Constraint("Vertical", 3),
    Sketcher.Constraint("Vertical", 4),
    Sketcher.Constraint("Horizontal", 5),
    Sketcher.Constraint("Vertical", 6),
    Sketcher.Constraint("Horizontal", 7),
    Sketcher.Constraint("Symmetric", 3, 2, 4, 2, -1, 1),
    Sketcher.Constraint("Symmetric", 1, 2, 6, 2, -1, 1),
    Sketcher.Constraint("Horizontal", 2, 2, 4, 2),
    Sketcher.Constraint("Equal", 7, 1),
    Sketcher.Constraint("DistanceX", 0, 1, 0, 2, 2.0),
    Sketcher.Constraint("DistanceX", -1, 1, 0, 2, 12.8),
])
pad4 = doc.addObject("PartDesign::Pad", "Pad003")
body.addObject(pad4)
pad4.Profile = sketch9
pad4.Length = 1
doc.recompute()

fillet = doc.addObject("PartDesign::Fillet", "Fillet")
body.addObject(fillet)
fillet.Base = (pad4, edges_at(pad4, [
    (12.8, -9.1, -1),
    (12.8, -9.1, 1),
    (10.8, -9.1, -1),
    (10.8, -9.1, 1),
]))
fillet.Radius = 0.5
doc.recompute()

fillet2 = doc.addObject("PartDesign::Fillet", "Fillet001")
body.addObject(fillet2)
fillet2.Base = (fillet, edges_at(fillet, [
    (-12.8, -9.1, -1),
    (-12.8, -9.1, 1),
    (-10.8, -9.1, -1),
    (-10.8, -9.1, 1),
]))
fillet2.Radius = 0.5

sketch10 = doc.addObject("Sketcher::SketchObject", "Sketch009")
body.addObject(sketch10)
sketch10.AttachmentSupport = (doc.XZ_Plane, [""])
sketch10.MapMode = "FlatFace"
sketch10.AttachmentOffset = App.Placement(App.Vector(0, 0, -11.0144), App.Rotation())
sketch10.addGeometry([
    Part.Circle(App.Vector(20, 0, 0), App.Vector(0, 0, 1), 0.8),
    Part.Circle(App.Vector(-20, 0, 0), App.Vector(0, 0, 1), 0.8),
], False)
sketch10.addConstraint([
    Sketcher.Constraint("Equal", 0, 1),
    Sketcher.Constraint("Symmetric", 0, 3, 1, 3, -1, 1),
    Sketcher.Constraint("PointOnObject", 0, 3, -1),
    Sketcher.Constraint("Diameter", 0, 1.6),
    Sketcher.Constraint("DistanceX", -1, 1, 0, 3, 20.0),
])
doc.recompute()
hole2 = doc.addObject("PartDesign::Hole", "Hole001")
body.addObject(hole2)
hole2.Profile = sketch10
hole2.ThreadType = "None"
hole2.Diameter = 1.6
hole2.DepthType = "Dimension"
hole2.Depth = 3.5
hole2.DrillPoint = "Angled"
hole2.DrillPointAngle = 118
hole2.Reversed = True

doc.recompute()
